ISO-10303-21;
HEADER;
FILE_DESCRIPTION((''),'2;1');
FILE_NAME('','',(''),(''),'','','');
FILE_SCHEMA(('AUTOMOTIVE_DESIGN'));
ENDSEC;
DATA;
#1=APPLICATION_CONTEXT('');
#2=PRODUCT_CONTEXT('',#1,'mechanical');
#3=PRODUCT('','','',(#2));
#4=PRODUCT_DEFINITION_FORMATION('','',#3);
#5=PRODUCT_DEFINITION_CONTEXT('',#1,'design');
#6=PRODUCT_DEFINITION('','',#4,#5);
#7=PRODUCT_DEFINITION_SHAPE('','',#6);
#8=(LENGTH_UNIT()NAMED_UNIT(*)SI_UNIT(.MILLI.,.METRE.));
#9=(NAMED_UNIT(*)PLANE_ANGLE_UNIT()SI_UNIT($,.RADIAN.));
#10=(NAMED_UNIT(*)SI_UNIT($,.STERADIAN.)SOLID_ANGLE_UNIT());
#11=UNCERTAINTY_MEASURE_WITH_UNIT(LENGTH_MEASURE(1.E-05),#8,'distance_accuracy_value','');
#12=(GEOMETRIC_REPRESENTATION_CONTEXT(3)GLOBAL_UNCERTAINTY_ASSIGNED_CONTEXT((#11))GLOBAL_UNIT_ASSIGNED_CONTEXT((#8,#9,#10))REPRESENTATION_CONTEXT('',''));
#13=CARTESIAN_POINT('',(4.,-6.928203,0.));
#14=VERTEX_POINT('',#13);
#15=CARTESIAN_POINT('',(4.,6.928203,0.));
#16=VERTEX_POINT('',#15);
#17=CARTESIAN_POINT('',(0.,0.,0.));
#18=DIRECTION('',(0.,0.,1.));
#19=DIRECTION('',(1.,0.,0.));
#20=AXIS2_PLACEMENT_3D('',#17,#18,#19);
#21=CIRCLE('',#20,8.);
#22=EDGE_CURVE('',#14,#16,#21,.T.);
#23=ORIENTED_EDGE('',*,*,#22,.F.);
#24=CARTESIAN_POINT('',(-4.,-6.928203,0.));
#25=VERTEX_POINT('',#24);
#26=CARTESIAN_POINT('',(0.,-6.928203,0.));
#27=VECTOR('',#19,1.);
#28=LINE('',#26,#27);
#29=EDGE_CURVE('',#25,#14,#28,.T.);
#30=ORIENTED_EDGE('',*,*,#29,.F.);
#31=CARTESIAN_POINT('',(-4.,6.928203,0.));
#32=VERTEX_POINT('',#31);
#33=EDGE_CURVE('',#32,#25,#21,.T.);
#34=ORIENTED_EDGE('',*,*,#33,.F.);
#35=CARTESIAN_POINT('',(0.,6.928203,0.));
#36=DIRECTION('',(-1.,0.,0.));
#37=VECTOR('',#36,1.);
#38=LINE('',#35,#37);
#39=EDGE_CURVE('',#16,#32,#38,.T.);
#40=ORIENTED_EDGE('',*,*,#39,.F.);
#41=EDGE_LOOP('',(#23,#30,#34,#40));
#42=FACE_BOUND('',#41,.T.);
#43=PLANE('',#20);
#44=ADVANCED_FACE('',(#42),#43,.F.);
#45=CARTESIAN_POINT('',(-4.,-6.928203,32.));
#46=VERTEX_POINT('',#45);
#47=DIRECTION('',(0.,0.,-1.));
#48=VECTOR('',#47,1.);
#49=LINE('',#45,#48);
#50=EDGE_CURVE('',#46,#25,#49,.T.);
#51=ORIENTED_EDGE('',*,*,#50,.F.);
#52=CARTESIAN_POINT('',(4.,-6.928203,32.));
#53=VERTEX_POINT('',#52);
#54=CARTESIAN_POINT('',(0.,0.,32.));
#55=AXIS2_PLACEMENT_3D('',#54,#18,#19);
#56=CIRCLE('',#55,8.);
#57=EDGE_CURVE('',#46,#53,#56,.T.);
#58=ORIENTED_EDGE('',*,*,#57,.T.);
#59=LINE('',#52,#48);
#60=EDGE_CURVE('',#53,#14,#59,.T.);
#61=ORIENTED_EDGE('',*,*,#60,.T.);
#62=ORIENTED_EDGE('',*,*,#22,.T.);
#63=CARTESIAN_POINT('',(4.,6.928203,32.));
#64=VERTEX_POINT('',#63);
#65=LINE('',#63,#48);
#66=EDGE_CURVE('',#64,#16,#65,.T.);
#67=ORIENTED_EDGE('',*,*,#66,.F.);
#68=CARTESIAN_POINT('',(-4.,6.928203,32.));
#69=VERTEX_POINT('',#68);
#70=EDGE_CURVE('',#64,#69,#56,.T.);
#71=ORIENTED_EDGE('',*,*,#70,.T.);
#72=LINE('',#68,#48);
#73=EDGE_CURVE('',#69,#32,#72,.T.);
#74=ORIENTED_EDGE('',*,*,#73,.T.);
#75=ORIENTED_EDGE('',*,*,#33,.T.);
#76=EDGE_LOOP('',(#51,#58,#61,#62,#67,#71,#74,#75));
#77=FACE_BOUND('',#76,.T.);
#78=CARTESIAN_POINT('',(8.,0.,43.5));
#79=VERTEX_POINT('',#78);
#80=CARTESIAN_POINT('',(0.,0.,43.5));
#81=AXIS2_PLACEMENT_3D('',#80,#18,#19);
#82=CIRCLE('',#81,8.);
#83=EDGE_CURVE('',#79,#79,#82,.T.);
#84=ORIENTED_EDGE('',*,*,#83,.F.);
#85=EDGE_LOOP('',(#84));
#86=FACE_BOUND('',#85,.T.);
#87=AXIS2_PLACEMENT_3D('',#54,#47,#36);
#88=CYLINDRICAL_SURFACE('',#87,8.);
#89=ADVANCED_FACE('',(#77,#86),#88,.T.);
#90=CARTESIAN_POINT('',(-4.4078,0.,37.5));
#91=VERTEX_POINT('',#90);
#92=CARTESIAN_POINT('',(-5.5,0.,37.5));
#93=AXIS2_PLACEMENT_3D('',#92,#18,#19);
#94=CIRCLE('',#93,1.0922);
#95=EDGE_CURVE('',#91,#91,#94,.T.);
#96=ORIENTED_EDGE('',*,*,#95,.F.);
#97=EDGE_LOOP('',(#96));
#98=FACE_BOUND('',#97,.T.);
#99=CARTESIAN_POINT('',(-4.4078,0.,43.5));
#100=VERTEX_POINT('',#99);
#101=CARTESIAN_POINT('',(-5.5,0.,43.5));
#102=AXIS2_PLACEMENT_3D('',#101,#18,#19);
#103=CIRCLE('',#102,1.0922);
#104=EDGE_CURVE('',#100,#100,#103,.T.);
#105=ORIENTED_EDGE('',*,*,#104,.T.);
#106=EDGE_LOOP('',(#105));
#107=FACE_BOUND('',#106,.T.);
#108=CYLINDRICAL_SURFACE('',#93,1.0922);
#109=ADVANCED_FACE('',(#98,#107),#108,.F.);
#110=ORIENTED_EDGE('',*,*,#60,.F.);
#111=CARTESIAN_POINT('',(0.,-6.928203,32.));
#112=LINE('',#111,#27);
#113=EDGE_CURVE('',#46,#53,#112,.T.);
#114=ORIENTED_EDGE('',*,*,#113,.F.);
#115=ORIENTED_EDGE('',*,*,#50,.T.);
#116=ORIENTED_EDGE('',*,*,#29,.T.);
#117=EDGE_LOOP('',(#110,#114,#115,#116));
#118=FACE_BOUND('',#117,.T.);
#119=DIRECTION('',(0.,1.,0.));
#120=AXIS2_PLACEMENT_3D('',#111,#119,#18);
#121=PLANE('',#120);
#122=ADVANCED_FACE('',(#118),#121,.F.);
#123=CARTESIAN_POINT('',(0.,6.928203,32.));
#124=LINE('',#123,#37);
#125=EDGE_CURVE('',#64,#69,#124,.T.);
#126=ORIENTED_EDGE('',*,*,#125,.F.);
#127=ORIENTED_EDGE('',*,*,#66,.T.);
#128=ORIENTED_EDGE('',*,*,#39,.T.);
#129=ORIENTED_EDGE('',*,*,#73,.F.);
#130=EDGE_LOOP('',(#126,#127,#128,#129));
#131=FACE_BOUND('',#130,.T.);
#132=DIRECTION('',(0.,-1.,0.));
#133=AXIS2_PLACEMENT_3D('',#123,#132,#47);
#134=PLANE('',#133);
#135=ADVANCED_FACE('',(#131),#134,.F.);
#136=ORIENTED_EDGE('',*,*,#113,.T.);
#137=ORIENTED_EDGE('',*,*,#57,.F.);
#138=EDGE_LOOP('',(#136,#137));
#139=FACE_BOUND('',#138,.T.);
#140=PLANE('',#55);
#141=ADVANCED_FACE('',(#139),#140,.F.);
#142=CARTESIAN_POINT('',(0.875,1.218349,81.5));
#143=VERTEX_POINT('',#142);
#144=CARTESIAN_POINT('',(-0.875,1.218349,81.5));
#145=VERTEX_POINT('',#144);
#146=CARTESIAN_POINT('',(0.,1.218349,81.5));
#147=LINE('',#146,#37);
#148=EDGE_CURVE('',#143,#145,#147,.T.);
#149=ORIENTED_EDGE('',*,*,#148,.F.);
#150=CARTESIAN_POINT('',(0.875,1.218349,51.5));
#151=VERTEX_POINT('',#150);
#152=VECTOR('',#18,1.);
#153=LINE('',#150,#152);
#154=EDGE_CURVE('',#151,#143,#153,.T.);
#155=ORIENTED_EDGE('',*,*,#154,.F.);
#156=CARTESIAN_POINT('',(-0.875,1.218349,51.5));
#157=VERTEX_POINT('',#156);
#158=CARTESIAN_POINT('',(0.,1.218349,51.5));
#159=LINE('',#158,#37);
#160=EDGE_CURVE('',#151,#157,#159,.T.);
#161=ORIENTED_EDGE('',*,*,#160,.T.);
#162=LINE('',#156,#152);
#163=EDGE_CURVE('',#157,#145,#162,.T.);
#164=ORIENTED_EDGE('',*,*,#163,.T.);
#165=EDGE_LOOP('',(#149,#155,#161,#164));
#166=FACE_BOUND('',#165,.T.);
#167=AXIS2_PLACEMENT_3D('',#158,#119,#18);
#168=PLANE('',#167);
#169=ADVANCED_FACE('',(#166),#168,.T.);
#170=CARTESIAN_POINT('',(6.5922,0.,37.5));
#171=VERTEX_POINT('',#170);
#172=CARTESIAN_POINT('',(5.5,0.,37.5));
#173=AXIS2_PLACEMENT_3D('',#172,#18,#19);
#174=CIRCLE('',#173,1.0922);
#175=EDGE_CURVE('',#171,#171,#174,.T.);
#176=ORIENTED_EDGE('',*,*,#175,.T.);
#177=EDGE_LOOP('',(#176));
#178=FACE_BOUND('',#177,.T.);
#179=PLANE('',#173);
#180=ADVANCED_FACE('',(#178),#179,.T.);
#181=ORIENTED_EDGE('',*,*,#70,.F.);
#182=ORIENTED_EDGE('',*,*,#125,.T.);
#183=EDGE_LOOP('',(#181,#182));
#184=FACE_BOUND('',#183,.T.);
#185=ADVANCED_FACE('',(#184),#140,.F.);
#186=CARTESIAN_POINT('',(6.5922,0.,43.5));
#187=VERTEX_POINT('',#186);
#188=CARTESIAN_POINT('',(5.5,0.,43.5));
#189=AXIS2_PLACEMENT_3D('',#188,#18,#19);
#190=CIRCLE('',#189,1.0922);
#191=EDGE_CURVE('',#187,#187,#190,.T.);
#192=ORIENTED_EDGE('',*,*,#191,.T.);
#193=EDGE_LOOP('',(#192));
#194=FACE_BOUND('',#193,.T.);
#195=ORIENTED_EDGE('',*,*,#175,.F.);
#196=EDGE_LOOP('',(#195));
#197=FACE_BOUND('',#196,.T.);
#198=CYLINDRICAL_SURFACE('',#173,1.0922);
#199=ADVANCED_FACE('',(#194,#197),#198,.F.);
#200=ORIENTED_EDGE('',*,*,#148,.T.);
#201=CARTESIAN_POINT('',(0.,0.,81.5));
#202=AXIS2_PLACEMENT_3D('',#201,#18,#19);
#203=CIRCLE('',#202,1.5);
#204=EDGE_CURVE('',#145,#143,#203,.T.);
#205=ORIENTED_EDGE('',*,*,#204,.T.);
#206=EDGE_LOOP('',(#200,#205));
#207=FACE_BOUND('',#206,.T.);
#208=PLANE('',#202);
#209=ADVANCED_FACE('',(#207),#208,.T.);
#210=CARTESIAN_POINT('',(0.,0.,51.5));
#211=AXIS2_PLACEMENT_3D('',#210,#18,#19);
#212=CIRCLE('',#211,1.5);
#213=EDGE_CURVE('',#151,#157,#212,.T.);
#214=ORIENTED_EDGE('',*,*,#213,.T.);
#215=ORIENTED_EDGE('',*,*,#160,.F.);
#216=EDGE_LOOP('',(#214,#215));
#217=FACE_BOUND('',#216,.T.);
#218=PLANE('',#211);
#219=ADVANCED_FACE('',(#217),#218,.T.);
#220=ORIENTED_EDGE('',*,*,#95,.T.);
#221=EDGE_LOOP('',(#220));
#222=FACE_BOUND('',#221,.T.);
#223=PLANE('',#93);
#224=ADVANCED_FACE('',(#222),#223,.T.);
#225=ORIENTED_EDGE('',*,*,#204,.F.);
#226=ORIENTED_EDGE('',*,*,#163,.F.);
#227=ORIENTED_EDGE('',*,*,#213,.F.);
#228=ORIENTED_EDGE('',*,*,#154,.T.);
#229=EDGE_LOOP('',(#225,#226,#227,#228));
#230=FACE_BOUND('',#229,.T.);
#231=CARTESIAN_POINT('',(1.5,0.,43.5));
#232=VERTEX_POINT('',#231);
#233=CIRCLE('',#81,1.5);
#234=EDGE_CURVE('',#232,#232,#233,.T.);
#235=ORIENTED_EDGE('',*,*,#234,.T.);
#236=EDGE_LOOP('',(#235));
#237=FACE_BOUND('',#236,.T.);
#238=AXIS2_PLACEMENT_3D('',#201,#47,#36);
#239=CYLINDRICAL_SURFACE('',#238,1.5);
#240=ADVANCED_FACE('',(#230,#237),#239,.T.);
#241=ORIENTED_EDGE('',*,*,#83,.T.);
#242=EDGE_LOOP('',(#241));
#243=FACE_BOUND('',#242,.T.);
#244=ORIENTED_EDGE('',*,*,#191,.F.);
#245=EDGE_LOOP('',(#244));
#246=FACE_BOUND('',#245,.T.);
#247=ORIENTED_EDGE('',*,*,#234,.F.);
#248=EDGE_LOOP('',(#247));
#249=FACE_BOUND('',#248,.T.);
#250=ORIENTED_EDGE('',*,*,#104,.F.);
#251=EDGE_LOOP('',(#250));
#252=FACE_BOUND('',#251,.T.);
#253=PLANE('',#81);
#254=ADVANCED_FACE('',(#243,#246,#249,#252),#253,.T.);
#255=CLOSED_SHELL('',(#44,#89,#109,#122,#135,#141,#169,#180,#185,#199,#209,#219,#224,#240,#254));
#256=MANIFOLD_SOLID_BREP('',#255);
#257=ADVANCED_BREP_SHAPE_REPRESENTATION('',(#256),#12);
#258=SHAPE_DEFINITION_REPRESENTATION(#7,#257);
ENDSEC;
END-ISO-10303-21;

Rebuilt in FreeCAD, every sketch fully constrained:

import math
import FreeCAD as App
import Part
import Sketcher
Q = App.Units.Quantity

doc = App.newDocument("Part")
body = doc.addObject("PartDesign::Body", "Body")

# Sketch on XY plane
sketch1 = body.newObject("Sketcher::SketchObject", "Sketch")
sketch1.AttachmentSupport = (doc.getObject("XY_Plane"), [""])
sketch1.MapMode = "FlatFace"
sketch1.addGeometry(Part.Circle(App.Vector(0, 0, 0), App.Vector(0, 0, 1), 8), False)
sketch1.addConstraint([
    Sketcher.Constraint("Coincident", 0, 3, -1, 1),
    Sketcher.Constraint("Diameter", 0, Q("16 mm")),
])
pad1 = body.newObject("PartDesign::Pad", "Pad")
pad1.Profile = sketch1
pad1.Length = 32

# Sketch on XY plane
sketch2 = body.newObject("Sketcher::SketchObject", "Sketch001")
sketch2.AttachmentSupport = (doc.getObject("XY_Plane"), [""])
sketch2.MapMode = "FlatFace"
sketch2.addGeometry([
    Part.ArcOfCircle(Part.Circle(App.Vector(0, 0, 0), App.Vector(0, 0, 1), 8), math.radians(60), math.radians(120)),
    Part.LineSegment(App.Vector(4, 7, 0), App.Vector(-4, 7, 0)),
    Part.LineSegment(App.Vector(-4, -7, 0), App.Vector(4, -7, 0)),
    Part.ArcOfCircle(Part.Circle(App.Vector(0, 0, 0), App.Vector(0, 0, 1), 8), math.radians(-120), math.radians(-60)),
], False)
sketch2.addConstraint([
    Sketcher.Constraint("Coincident", 0, 1, 1, 1),
    Sketcher.Constraint("Coincident", 1, 2, 0, 2),
    Sketcher.Constraint("Coincident", 2, 1, 3, 1),
    Sketcher.Constraint("Coincident", 3, 2, 2, 2),
    Sketcher.Constraint("Horizontal", 1),
    Sketcher.Constraint("Horizontal", 2),
    Sketcher.Constraint("Coincident", 0, 3, -1, 1),
    Sketcher.Constraint("Coincident", 3, 3, -1, 1),
    Sketcher.Constraint("Equal", 0, 3),
    Sketcher.Constraint("Vertical", 1, 2, 2, 1),
    Sketcher.Constraint("Radius", 0, Q("8 mm")),
    Sketcher.Constraint("DistanceX", 1, 2, 1, 1, Q("8 mm")),
])
pocket1 = body.newObject("PartDesign::Pocket", "Pocket")
pocket1.Profile = sketch2
pocket1.Length = 32
pocket1.Reversed = True

# Sketch on XY plane
sketch3 = body.newObject("Sketcher::SketchObject", "Sketch002")
sketch3.AttachmentSupport = (doc.getObject("XY_Plane"), [""])
sketch3.MapMode = "FlatFace"
sketch3.AttachmentOffset = App.Placement(App.Vector(0, 0, 32), App.Rotation())
sketch3.addGeometry(Part.Circle(App.Vector(0, 0, 0), App.Vector(0, 0, 1), 8), False)
sketch3.addConstraint([
    Sketcher.Constraint("Coincident", 0, 3, -1, 1),
    Sketcher.Constraint("Diameter", 0, Q("16 mm")),
])
pad2 = body.newObject("PartDesign::Pad", "Pad001")
pad2.Profile = sketch3
pad2.Length = 11.5

# Sketch on XY plane
sketch4 = body.newObject("Sketcher::SketchObject", "Sketch003")
sketch4.AttachmentSupport = (doc.getObject("XY_Plane"), [""])
sketch4.MapMode = "FlatFace"
sketch4.AttachmentOffset = App.Placement(App.Vector(0, 0, 43.5), App.Rotation())
sketch4.addGeometry([
    Part.Circle(App.Vector(-5.5, 0, 0), App.Vector(0, 0, 1), 1.1),
    Part.Circle(App.Vector(5.5, 0, 0), App.Vector(0, 0, 1), 1.1),
], False)
sketch4.addConstraint([
    Sketcher.Constraint("Equal", 0, 1),
    Sketcher.Constraint("Symmetric", 0, 3, 1, 3, -1, 1),
    Sketcher.Constraint("PointOnObject", 0, 3, -1),
    Sketcher.Constraint("DistanceX", 0, 3, 1, 3, Q("11 mm")),
    Sketcher.Constraint("Diameter", 0, Q("2.1844 mm")),
])
pocket2 = body.newObject("PartDesign::Pocket", "Pocket001")
pocket2.Profile = sketch4
pocket2.Length = 6

# Sketch on XY plane
sketch5 = body.newObject("Sketcher::SketchObject", "Sketch004")
sketch5.AttachmentSupport = (doc.getObject("XY_Plane"), [""])
sketch5.MapMode = "FlatFace"
sketch5.AttachmentOffset = App.Placement(App.Vector(0, 0, 43.5), App.Rotation())
sketch5.addGeometry(Part.Circle(App.Vector(0, 0, 0), App.Vector(0, 0, 1), 1.5), False)
sketch5.addConstraint([
    Sketcher.Constraint("Coincident", 0, 3, -1, 1),
    Sketcher.Constraint("Diameter", 0, Q("3 mm")),
])
pad3 = body.newObject("PartDesign::Pad", "Pad002")
pad3.Profile = sketch5
pad3.Length = 38

# Sketch on XY plane
sketch6 = body.newObject("Sketcher::SketchObject", "Sketch005")
sketch6.AttachmentSupport = (doc.getObject("XY_Plane"), [""])
sketch6.MapMode = "FlatFace"
sketch6.AttachmentOffset = App.Placement(App.Vector(0, 0, 51.5), App.Rotation())
sketch6.addGeometry([
    Part.LineSegment(App.Vector(-0.9, 1.2, 0), App.Vector(0.9, 1.2, 0)),
    Part.ArcOfCircle(Part.Circle(App.Vector(0, 0, 0), App.Vector(0, 0, 1), 1.5), math.radians(54), math.radians(126)),
], False)
sketch6.addConstraint([
    Sketcher.Constraint("Coincident", 0, 1, 1, 2),
    Sketcher.Constraint("Coincident", 1, 1, 0, 2),
    Sketcher.Constraint("Horizontal", 0),
    Sketcher.Constraint("Coincident", 1, 3, -1, 1),
    Sketcher.Constraint("Radius", 1, Q("1.5 mm")),
    Sketcher.Constraint("DistanceX", 0, 1, 0, 2, Q("1.75 mm")),
])
pocket3 = body.newObject("PartDesign::Pocket", "Pocket002")
pocket3.Profile = sketch6
pocket3.Length = 30
pocket3.Reversed = True

doc.recompute()
